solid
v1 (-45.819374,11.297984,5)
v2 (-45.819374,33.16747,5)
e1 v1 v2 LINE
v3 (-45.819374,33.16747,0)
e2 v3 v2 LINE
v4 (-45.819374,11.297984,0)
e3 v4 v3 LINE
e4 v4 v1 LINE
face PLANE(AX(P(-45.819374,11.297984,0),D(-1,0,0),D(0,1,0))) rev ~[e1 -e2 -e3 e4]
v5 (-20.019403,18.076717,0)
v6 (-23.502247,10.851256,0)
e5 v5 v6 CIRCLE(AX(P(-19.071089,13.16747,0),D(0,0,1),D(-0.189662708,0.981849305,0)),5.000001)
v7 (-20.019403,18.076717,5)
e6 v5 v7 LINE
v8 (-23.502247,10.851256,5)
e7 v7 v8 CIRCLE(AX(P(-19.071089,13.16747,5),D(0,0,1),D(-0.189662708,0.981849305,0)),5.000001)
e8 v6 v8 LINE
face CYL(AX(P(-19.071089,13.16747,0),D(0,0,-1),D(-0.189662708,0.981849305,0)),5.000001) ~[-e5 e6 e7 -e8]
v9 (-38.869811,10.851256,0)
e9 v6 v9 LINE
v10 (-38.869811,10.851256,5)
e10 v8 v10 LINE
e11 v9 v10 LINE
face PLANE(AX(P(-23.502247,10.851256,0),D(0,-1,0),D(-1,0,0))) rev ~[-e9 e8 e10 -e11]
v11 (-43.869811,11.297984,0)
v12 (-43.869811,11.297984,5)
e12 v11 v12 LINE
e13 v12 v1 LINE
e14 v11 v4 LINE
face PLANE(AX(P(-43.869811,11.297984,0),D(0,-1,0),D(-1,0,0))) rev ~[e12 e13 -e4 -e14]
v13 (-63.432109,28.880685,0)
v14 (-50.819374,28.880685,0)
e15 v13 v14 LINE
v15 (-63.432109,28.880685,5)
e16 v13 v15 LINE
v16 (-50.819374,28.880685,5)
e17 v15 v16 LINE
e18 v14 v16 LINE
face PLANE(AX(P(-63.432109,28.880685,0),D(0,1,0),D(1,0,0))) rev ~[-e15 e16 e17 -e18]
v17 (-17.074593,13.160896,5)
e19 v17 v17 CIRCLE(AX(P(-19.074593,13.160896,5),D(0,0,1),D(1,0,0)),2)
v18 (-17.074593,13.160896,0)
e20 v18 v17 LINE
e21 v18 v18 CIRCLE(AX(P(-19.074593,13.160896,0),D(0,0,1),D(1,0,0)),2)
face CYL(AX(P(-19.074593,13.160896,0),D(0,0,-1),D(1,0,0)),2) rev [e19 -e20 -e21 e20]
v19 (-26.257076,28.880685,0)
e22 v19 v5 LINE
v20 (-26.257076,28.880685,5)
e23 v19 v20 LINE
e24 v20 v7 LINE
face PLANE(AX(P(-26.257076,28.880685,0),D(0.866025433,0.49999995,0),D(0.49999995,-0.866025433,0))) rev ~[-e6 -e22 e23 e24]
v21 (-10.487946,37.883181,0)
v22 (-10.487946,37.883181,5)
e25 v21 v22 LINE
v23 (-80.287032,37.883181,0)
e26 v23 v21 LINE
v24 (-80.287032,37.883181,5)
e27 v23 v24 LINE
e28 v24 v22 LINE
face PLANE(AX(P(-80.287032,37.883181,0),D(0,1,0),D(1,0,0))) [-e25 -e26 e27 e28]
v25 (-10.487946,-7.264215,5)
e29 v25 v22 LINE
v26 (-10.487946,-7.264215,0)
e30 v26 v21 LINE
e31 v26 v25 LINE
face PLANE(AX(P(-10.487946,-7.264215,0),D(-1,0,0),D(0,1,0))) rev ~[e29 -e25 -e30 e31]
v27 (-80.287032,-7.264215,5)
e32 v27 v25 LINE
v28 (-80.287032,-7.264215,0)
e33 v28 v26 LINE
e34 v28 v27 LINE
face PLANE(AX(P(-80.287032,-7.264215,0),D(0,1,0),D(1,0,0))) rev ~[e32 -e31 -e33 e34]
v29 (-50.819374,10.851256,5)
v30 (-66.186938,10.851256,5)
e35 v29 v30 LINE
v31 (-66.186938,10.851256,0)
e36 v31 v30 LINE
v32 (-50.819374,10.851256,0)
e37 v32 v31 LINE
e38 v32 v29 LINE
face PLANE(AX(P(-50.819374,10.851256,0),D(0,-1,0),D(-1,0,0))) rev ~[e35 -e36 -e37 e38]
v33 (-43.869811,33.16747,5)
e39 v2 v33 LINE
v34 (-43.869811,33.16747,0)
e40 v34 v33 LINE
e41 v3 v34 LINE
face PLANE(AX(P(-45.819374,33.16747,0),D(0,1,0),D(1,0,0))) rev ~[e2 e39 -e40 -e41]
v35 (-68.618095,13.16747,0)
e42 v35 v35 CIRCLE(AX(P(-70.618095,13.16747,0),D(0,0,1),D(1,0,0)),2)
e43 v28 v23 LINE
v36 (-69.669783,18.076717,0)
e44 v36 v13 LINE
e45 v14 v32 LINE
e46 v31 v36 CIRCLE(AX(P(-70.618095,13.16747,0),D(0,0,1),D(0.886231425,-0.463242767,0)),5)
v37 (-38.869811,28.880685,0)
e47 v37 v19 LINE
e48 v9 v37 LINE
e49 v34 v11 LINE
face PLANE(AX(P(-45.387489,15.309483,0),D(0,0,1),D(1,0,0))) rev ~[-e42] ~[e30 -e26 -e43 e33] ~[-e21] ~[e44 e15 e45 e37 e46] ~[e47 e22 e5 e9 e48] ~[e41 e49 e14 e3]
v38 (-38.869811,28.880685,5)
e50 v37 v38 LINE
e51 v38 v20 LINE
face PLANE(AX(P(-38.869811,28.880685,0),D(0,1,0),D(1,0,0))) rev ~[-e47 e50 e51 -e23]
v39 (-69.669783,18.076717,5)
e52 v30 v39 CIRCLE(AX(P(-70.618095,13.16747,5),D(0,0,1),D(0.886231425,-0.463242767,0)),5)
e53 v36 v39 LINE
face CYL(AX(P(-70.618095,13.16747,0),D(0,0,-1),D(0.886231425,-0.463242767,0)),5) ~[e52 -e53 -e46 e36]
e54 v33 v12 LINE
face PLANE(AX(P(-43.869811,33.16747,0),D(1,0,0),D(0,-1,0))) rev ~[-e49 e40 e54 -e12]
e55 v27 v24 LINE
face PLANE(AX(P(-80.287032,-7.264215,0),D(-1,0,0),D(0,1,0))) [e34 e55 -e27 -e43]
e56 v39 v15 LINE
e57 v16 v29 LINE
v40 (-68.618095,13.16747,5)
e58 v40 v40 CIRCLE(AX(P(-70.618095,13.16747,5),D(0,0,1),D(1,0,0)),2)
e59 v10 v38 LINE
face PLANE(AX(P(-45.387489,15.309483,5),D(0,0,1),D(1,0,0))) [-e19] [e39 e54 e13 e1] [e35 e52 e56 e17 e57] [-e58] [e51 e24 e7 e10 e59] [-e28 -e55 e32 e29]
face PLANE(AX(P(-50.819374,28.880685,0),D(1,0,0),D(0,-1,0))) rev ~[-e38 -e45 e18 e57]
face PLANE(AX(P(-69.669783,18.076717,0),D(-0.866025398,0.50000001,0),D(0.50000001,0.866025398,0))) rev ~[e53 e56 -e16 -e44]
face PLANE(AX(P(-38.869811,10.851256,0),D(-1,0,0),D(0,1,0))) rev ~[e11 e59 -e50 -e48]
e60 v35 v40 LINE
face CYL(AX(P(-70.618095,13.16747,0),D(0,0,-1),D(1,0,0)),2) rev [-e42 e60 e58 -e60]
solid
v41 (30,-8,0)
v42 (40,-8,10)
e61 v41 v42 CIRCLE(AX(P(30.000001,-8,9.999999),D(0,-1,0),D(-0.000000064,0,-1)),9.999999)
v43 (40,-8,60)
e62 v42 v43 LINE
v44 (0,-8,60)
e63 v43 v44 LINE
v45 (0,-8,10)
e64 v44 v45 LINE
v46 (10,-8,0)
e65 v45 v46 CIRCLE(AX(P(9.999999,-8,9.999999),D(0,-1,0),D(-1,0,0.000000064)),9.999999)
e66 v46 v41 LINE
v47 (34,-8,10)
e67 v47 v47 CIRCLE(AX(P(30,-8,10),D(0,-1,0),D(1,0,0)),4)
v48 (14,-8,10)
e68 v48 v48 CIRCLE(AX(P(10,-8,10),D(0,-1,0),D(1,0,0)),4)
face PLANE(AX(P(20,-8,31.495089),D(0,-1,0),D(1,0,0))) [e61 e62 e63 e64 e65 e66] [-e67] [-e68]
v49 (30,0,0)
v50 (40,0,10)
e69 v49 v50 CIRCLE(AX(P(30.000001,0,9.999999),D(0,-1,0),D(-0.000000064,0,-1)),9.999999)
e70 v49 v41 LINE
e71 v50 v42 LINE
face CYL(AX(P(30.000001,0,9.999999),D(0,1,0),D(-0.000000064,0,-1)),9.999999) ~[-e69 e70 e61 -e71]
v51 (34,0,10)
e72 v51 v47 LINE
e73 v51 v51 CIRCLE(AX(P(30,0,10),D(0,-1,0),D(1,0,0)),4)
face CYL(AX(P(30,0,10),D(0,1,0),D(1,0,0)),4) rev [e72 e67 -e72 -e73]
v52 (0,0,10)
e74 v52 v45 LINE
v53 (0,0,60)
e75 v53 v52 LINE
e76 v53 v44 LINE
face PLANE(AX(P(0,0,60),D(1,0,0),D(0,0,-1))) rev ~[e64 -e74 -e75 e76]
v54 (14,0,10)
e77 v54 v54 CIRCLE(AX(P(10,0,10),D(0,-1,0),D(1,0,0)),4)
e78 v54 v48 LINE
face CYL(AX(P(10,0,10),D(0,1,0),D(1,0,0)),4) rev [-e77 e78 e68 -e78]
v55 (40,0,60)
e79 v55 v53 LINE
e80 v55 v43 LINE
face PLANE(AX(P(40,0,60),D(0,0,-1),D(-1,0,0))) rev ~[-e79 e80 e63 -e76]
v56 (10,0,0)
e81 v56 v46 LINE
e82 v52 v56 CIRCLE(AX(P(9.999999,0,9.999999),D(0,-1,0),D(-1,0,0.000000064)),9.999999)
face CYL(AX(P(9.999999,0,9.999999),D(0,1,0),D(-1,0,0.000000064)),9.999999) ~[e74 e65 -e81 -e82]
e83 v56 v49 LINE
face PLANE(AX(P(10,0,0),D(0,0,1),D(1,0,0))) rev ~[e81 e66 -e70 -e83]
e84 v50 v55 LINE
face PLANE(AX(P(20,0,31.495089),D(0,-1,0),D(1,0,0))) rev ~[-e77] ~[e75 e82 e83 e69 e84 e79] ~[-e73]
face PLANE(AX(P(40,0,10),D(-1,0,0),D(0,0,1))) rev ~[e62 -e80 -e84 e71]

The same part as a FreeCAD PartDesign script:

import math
import FreeCAD as App
import Part
import Sketcher
Q = App.Units.Quantity


def add_polygon(sketch, points):
    """Adds a closed chain of lines whose ends are joined by coincident constraints."""
    first, n = sketch.GeometryCount, len(points)
    for a, b in zip(points, points[1:] + points[:1]):
        sketch.addGeometry(Part.LineSegment(App.Vector(*a, 0), App.Vector(*b, 0)), False)
    for i in range(n):
        sketch.addConstraint(Sketcher.Constraint("Coincident", first + i, 2, first + (i + 1) % n, 1))

doc = App.newDocument("Part")
body = doc.addObject("PartDesign::Body", "Body")

# Sketch on XZ plane
sketch1 = body.newObject("Sketcher::SketchObject", "Sketch")
sketch1.AttachmentSupport = (doc.getObject("XZ_Plane"), [""])
sketch1.MapMode = "FlatFace"
sketch1.addGeometry([
    Part.ArcOfCircle(Part.Circle(App.Vector(10, 10, 0), App.Vector(0, 0, 1), 10), math.radians(180), math.radians(270)),  # 0
    Part.LineSegment(App.Vector(10, 0, 0), App.Vector(30, 0, 0)),  # 1
    Part.ArcOfCircle(Part.Circle(App.Vector(30, 10, 0), App.Vector(0, 0, 1), 10), math.radians(-90), math.radians(0)),  # 2
    Part.LineSegment(App.Vector(40, 10, 0), App.Vector(40, 60, 0)),  # 3
    Part.LineSegment(App.Vector(40, 60, 0), App.Vector(0, 60, 0)),  # 4
    Part.LineSegment(App.Vector(0, 60, 0), App.Vector(0, 10, 0)),  # 5
    Part.Circle(App.Vector(10, 10, 0), App.Vector(0, 0, 1), 4),  # 6
    Part.Circle(App.Vector(30, 10, 0), App.Vector(0, 0, 1), 4),  # 7
], False)
sketch1.addConstraint([
    Sketcher.Constraint("Tangent", 0, 2, 1, 1),
    Sketcher.Constraint("Tangent", 1, 2, 2, 1),
    Sketcher.Constraint("Tangent", 2, 2, 3, 1),
    Sketcher.Constraint("Coincident", 3, 2, 4, 1),
    Sketcher.Constraint("Coincident", 4, 2, 5, 1),
    Sketcher.Constraint("Tangent", 5, 2, 0, 1),
    Sketcher.Constraint("Horizontal", 1),
    Sketcher.Constraint("Vertical", 3),
    Sketcher.Constraint("Horizontal", 4),
    Sketcher.Constraint("Vertical", 5),
    Sketcher.Constraint("Coincident", 6, 3, 0, 3),
    Sketcher.Constraint("Coincident", 7, 3, 2, 3),
    Sketcher.Constraint("Equal", 0, 2),
    Sketcher.Constraint("Equal", 6, 7),
    Sketcher.Constraint("PointOnObject", 0, 2, -1),
    Sketcher.Constraint("PointOnObject", 4, 2, -2),
    Sketcher.Constraint("Diameter", 6, 8.0),
    Sketcher.Constraint("Radius", 0, 9.999999),
    Sketcher.Constraint("DistanceX", 1, 1, 1, 2, 20.0),
    Sketcher.Constraint("DistanceY", 3, 1, 3, 2, 50.0),
])
pad1 = body.newObject("PartDesign::Pad", "Pad")
pad1.Profile = sketch1
pad1.Length = 8
body2 = doc.addObject("PartDesign::Body", "Body001")

# Sketch on XY plane
sketch2 = body2.newObject("Sketcher::SketchObject", "Sketch001")
sketch2.AttachmentSupport = (doc.getObject("XY_Plane001"), [""])
sketch2.MapMode = "FlatFace"
add_polygon(sketch2, [(-80.3, 37.9), (-80.3, -7.3), (-10.5, -7.3), (-10.5, 37.9)])  # lines 0-3
sketch2.addGeometry(Part.Circle(App.Vector(-70.6, 13.2, 0), App.Vector(0, 0, 1), 2), False)  # 4
sketch2.addGeometry(Part.LineSegment(App.Vector(-50.8, 28.9, 0), App.Vector(-50.8, 10.9, 0)), False)  # 5
sketch2.addGeometry(Part.LineSegment(App.Vector(-50.8, 10.9, 0), App.Vector(-66.2, 10.9, 0)), False)  # 6
sketch2.addGeometry(Part.ArcOfCircle(Part.Circle(App.Vector(-70.6, 13.2, 0), App.Vector(0, 0, 1), 5), math.radians(-28), math.radians(79)), False)  # 7
sketch2.addGeometry(Part.LineSegment(App.Vector(-69.7, 18.1, 0), App.Vector(-63.4, 28.9, 0)), False)  # 8
sketch2.addGeometry(Part.LineSegment(App.Vector(-63.4, 28.9, 0), App.Vector(-50.8, 28.9, 0)), False)  # 9
sketch2.addGeometry(Part.Circle(App.Vector(-19.1, 13.2, 0), App.Vector(0, 0, 1), 2), False)  # 10
sketch2.addGeometry(Part.ArcOfCircle(Part.Circle(App.Vector(-19.1, 13.2, 0), App.Vector(0, 0, 1), 5), math.radians(101), math.radians(208)), False)  # 11
sketch2.addGeometry(Part.LineSegment(App.Vector(-23.5, 10.9, 0), App.Vector(-38.9, 10.9, 0)), False)  # 12
sketch2.addGeometry(Part.LineSegment(App.Vector(-38.9, 10.9, 0), App.Vector(-38.9, 28.9, 0)), False)  # 13
sketch2.addGeometry(Part.LineSegment(App.Vector(-38.9, 28.9, 0), App.Vector(-26.3, 28.9, 0)), False)  # 14
sketch2.addGeometry(Part.LineSegment(App.Vector(-26.3, 28.9, 0), App.Vector(-20, 18.1, 0)), False)  # 15
add_polygon(sketch2, [(-43.9, 11.3), (-45.8, 11.3), (-45.8, 33.2), (-43.9, 33.2)])  # lines 16-19
sketch2.addConstraint([
    Sketcher.Constraint("Coincident", 5, 2, 6, 1),
    Sketcher.Constraint("Coincident", 6, 2, 7, 1),
    Sketcher.Constraint("Coincident", 7, 2, 8, 1),
    Sketcher.Constraint("Coincident", 8, 2, 9, 1),
    Sketcher.Constraint("Coincident", 9, 2, 5, 1),
    Sketcher.Constraint("Coincident", 11, 2, 12, 1),
    Sketcher.Constraint("Coincident", 12, 2, 13, 1),
    Sketcher.Constraint("Coincident", 13, 2, 14, 1),
    Sketcher.Constraint("Coincident", 14, 2, 15, 1),
    Sketcher.Constraint("Coincident", 15, 2, 11, 1),
    Sketcher.Constraint("Vertical", 0),
    Sketcher.Constraint("Horizontal", 1),
    Sketcher.Constraint("Vertical", 2),
    Sketcher.Constraint("Horizontal", 3),
    Sketcher.Constraint("Vertical", 5),
    Sketcher.Constraint("Horizontal", 6),
    Sketcher.Constraint("Horizontal", 9),
    Sketcher.Constraint("Horizontal", 12),
    Sketcher.Constraint("Vertical", 13),
    Sketcher.Constraint("Horizontal", 14),
    Sketcher.Constraint("Horizontal", 16),
    Sketcher.Constraint("Vertical", 17),
    Sketcher.Constraint("Horizontal", 18),
    Sketcher.Constraint("Vertical", 19),
    Sketcher.Constraint("Coincident", 7, 3, 4, 3),
    Sketcher.Constraint("Equal", 4, 10),
    Sketcher.Constraint("Equal", 7, 11),
    Sketcher.Constraint("Horizontal", 7, 3, 11, 3),
    Sketcher.Constraint("Horizontal", 6, 2, 11, 2),
    Sketcher.Constraint("Horizontal", 9, 2, 13, 2),
    Sketcher.Constraint("Horizontal", 7, 2, 15, 2),
    Sketcher.Constraint("Equal", 6, 12),
    Sketcher.Constraint("Equal", 9, 14),
    Sketcher.Constraint("Diameter", 4, 4.0),
    Sketcher.Constraint("Radius", 7, 5.0),
    Sketcher.Constraint("Angle", 8, Q("59.999999 deg")),
    Sketcher.Constraint("DistanceX", 5, 2, 16, 2, 5.0),
    Sketcher.Constraint("DistanceX", 18, 2, 13, 2, 5.0),
    Sketcher.Constraint("DistanceY", 5, 2, 5, 1, 18.029429),
    Sketcher.Constraint("DistanceX", 4, 3, 10, 3, 51.543502),
    Sketcher.Constraint("DistanceX", 11, 2, 1, 2, 13.014301),
    Sketcher.Constraint("DistanceY", 16, 2, 9, 2, 17.582701),
    Sketcher.Constraint("DistanceX", 17, 2, 14, 2, 19.562298),
    Sketcher.Constraint("DistanceX", 1, 1, 1, 2, 69.799086),
    Sketcher.Constraint("DistanceX", 6, 2, 6, 1, 15.367564),
    Sketcher.Constraint("DistanceX", 9, 1, 9, 2, 12.612735),
    Sketcher.Constraint("DistanceY", 0, 2, 0, 1, 45.147397),
    Sketcher.Constraint("DistanceY", 17, 1, 17, 2, 21.869486),
    Sketcher.Constraint("DistanceY", -1, 1, 4, 3, 13.16747),
    Sketcher.Constraint("DistanceX", 11, 3, -1, 1, 19.071089),
    Sketcher.Constraint("DistanceX", 0, 2, -1, 1, 80.287032),
    Sketcher.Constraint("DistanceY", -1, 1, 2, 2, 37.883181),
    Sketcher.Constraint("DistanceY", 0, 2, 10, 3, 20.425111),
])
pad2 = body2.newObject("PartDesign::Pad", "Pad001")
pad2.Profile = sketch2
pad2.Length = 5

doc.recompute()
